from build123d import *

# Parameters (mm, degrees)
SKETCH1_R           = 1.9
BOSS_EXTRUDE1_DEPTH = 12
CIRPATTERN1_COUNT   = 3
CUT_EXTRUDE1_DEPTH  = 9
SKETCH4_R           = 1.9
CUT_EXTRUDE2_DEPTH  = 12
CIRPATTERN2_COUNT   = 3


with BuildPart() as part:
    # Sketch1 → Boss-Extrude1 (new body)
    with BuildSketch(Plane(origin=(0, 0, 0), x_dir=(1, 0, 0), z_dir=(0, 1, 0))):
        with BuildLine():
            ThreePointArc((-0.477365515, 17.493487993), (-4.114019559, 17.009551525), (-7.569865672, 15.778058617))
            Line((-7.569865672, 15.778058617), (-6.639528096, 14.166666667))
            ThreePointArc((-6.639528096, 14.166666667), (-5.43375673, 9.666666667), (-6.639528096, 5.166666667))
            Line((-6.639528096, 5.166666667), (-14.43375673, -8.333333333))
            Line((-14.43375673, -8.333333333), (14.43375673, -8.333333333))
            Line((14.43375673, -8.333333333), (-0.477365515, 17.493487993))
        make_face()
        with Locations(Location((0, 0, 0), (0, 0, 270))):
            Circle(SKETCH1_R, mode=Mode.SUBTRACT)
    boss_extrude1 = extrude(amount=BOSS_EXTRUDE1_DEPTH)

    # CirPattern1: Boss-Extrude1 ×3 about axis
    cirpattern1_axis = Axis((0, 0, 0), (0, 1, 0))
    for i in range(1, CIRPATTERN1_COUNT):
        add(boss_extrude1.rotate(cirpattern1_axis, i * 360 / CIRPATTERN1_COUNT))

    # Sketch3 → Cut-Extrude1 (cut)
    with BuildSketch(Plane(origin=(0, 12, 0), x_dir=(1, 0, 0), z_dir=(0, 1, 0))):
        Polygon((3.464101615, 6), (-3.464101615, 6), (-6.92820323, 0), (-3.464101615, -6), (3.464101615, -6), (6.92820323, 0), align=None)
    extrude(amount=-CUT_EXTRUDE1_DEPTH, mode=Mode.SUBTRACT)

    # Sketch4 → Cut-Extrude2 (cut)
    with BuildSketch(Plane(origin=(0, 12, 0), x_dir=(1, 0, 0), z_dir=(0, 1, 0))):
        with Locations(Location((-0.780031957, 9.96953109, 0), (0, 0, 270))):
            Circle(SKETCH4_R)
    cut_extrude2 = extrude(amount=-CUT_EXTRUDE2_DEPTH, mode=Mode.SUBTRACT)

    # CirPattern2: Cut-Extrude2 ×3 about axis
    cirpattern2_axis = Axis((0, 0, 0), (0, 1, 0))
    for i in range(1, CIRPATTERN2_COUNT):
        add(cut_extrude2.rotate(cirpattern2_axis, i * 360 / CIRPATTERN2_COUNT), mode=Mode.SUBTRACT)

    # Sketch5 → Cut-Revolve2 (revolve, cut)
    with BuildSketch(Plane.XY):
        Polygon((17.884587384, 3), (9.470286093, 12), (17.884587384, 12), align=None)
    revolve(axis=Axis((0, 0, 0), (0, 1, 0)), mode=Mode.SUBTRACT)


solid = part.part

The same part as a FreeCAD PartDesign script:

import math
import FreeCAD as App
import Part
import Sketcher

V = App.Vector
Q = App.Units.Quantity

doc = App.newDocument("Part")
body = doc.addObject("PartDesign::Body", "Body")

sketch1 = body.newObject("Sketcher::SketchObject", "Sketch")
sketch1.AttachmentSupport = (doc.getObject("XZ_Plane"), [""])
sketch1.MapMode = "FlatFace"
sketch1.addGeometry([
    Part.ArcOfCircle(Part.Circle(V(0, 0, 0), V(0, 0, 1), 17.5), math.radians(-115.630373), math.radians(-91.56311)),
    Part.LineSegment(V(-7.569866, -15.778059, 0), V(-6.639528, -14.166667, 0)),
    Part.ArcOfCircle(Part.Circle(V(-14.433757, -9.666667, 0), V(0, 0, 1), 9), math.radians(-30), math.radians(30)),
    Part.LineSegment(V(-6.639528, -5.166667, 0), V(-14.433757, 8.333333, 0)),
    Part.LineSegment(V(-14.433757, 8.333333, 0), V(14.433757, 8.333333, 0)),
    Part.LineSegment(V(14.433757, 8.333333, 0), V(-0.477366, -17.493488, 0)),
    Part.Circle(V(0, 0, 0), V(0, 0, 1), 1.9),
], False)
sketch1.addConstraint([
    Sketcher.Constraint("Coincident", 0, 1, 1, 1),
    Sketcher.Constraint("Tangent", 1, 2, 2, 1),
    Sketcher.Constraint("Tangent", 2, 2, 3, 1),
    Sketcher.Constraint("Coincident", 3, 2, 4, 1),
    Sketcher.Constraint("Coincident", 4, 2, 5, 1),
    Sketcher.Constraint("Coincident", 5, 2, 0, 2),
    Sketcher.Constraint("Horizontal", 4),
    Sketcher.Constraint("Coincident", 0, 3, -1, 1),
    Sketcher.Constraint("Coincident", 6, 3, -1, 1),
    Sketcher.Constraint("Parallel", 1, 5),
    Sketcher.Constraint("Vertical", 1, 2, 2, 2),
    Sketcher.Constraint("Vertical", 2, 3, 3, 2),
    Sketcher.Constraint("Radius", 2, 9.0),
    Sketcher.Constraint("Diameter", 6, 3.8),
    Sketcher.Constraint("Radius", 0, 17.5),
    Sketcher.Constraint("Angle", 1, Q("60 deg")),
    Sketcher.Constraint("DistanceX", 0, 1, 5, 2, 7.0925),
    Sketcher.Constraint("DistanceX", 4, 1, 4, 2, 28.867513),
    Sketcher.Constraint("DistanceX", 1, 2, -1, 1, 6.639528),
])
pad1 = body.newObject("PartDesign::Pad", "Pad")
pad1.Profile = sketch1
pad1.Length = 12
pad1.Reversed = True
doc.recompute()

polarpattern = body.newObject("PartDesign::PolarPattern", "PolarPattern")
polarpattern.Originals = [pad1]
polarpattern.Axis = (doc.getObject("Y_Axis"), [""])
polarpattern.Angle = 360
polarpattern.Occurrences = 3
body.Tip = polarpattern

sketch2 = body.newObject("Sketcher::SketchObject", "Sketch001")
sketch2.AttachmentSupport = (doc.getObject("XZ_Plane"), [""])
sketch2.MapMode = "FlatFace"
sketch2.AttachmentOffset = App.Placement(V(0, 0, -12), App.Rotation())
sketch2.addGeometry([
    Part.LineSegment(V(3.464102, -6, 0), V(-3.464102, -6, 0)),
    Part.LineSegment(V(-3.464102, -6, 0), V(-6.928203, 0, 0)),
    Part.LineSegment(V(-6.928203, 0, 0), V(-3.464102, 6, 0)),
    Part.LineSegment(V(-3.464102, 6, 0), V(3.464102, 6, 0)),
    Part.LineSegment(V(3.464102, 6, 0), V(6.928203, 0, 0)),
    Part.LineSegment(V(6.928203, 0, 0), V(3.464102, -6, 0)),
], False)
sketch2.addConstraint([
    Sketcher.Constraint("Coincident", 0, 2, 1, 1),
    Sketcher.Constraint("Coincident", 1, 2, 2, 1),
    Sketcher.Constraint("Coincident", 2, 2, 3, 1),
    Sketcher.Constraint("Coincident", 3, 2, 4, 1),
    Sketcher.Constraint("Coincident", 4, 2, 5, 1),
    Sketcher.Constraint("Coincident", 5, 2, 0, 1),
    Sketcher.Constraint("Horizontal", 0),
    Sketcher.Constraint("Horizontal", 3),
    Sketcher.Constraint("Symmetric", 0, 2, 3, 2, -1, 1),
    Sketcher.Constraint("Symmetric", 1, 2, 4, 2, -1, 1),
    Sketcher.Constraint("PointOnObject", 1, 2, -1),
    Sketcher.Constraint("Parallel", 2, 5),
    Sketcher.Constraint("Vertical", 0, 2, 2, 2),
    Sketcher.Constraint("Angle", 1, Q("120 deg")),
    Sketcher.Constraint("DistanceY", 0, 2, -1, 1, 6.0),
    Sketcher.Constraint("DistanceX", 0, 2, -1, 1, 3.464102),
])
pocket1 = body.newObject("PartDesign::Pocket", "Pocket")
pocket1.Profile = sketch2
pocket1.Length = 9
pocket1.Reversed = True

sketch3 = body.newObject("Sketcher::SketchObject", "Sketch002")
sketch3.AttachmentSupport = (doc.getObject("XZ_Plane"), [""])
sketch3.MapMode = "FlatFace"
sketch3.AttachmentOffset = App.Placement(V(0, 0, -12), App.Rotation())
sketch3.addGeometry(Part.Circle(V(-0.780032, -9.969531, 0), V(0, 0, 1), 1.9), False)
sketch3.addConstraint([
    Sketcher.Constraint("Diameter", 0, 3.8),
    Sketcher.Constraint("DistanceX", 0, 3, -1, 1, 0.780032),
    Sketcher.Constraint("DistanceY", 0, 3, -1, 1, 9.969531),
])
pocket2 = body.newObject("PartDesign::Pocket", "Pocket001")
pocket2.Profile = sketch3
pocket2.Length = 12
pocket2.Reversed = True
doc.recompute()

polarpattern2 = body.newObject("PartDesign::PolarPattern", "PolarPattern001")
polarpattern2.Originals = [pocket2]
polarpattern2.Axis = (doc.getObject("Y_Axis"), [""])
polarpattern2.Angle = 360
polarpattern2.Occurrences = 3
body.Tip = polarpattern2

sketch4 = body.newObject("Sketcher::SketchObject", "Sketch003")
sketch4.AttachmentSupport = (doc.getObject("XY_Plane"), [""])
sketch4.MapMode = "FlatFace"
sketch4.addGeometry([
    Part.LineSegment(V(9.470286, 12, 0), V(17.884587, 3, 0)),
    Part.LineSegment(V(17.884587, 3, 0), V(17.884587, 12, 0)),
    Part.LineSegment(V(17.884587, 12, 0), V(9.470286, 12, 0)),
], False)
sketch4.addConstraint([
    Sketcher.Constraint("Coincident", 0, 2, 1, 1),
    Sketcher.Constraint("Coincident", 1, 2, 2, 1),
    Sketcher.Constraint("Coincident", 2, 2, 0, 1),
    Sketcher.Constraint("Vertical", 1),
    Sketcher.Constraint("Horizontal", 2),
    Sketcher.Constraint("DistanceY", 1, 1, 1, 2, 9.0),
    Sketcher.Constraint("DistanceY", -1, 1, 0, 2, 3.0),
    Sketcher.Constraint("DistanceX", 2, 2, 2, 1, 8.414301),
    Sketcher.Constraint("DistanceX", -1, 1, 0, 2, 17.884587),
])
groove = body.newObject("PartDesign::Groove", "Groove")
groove.Profile = sketch4
groove.ReferenceAxis = (sketch4, ["V_Axis"])
groove.Angle = 360

doc.recompute()
